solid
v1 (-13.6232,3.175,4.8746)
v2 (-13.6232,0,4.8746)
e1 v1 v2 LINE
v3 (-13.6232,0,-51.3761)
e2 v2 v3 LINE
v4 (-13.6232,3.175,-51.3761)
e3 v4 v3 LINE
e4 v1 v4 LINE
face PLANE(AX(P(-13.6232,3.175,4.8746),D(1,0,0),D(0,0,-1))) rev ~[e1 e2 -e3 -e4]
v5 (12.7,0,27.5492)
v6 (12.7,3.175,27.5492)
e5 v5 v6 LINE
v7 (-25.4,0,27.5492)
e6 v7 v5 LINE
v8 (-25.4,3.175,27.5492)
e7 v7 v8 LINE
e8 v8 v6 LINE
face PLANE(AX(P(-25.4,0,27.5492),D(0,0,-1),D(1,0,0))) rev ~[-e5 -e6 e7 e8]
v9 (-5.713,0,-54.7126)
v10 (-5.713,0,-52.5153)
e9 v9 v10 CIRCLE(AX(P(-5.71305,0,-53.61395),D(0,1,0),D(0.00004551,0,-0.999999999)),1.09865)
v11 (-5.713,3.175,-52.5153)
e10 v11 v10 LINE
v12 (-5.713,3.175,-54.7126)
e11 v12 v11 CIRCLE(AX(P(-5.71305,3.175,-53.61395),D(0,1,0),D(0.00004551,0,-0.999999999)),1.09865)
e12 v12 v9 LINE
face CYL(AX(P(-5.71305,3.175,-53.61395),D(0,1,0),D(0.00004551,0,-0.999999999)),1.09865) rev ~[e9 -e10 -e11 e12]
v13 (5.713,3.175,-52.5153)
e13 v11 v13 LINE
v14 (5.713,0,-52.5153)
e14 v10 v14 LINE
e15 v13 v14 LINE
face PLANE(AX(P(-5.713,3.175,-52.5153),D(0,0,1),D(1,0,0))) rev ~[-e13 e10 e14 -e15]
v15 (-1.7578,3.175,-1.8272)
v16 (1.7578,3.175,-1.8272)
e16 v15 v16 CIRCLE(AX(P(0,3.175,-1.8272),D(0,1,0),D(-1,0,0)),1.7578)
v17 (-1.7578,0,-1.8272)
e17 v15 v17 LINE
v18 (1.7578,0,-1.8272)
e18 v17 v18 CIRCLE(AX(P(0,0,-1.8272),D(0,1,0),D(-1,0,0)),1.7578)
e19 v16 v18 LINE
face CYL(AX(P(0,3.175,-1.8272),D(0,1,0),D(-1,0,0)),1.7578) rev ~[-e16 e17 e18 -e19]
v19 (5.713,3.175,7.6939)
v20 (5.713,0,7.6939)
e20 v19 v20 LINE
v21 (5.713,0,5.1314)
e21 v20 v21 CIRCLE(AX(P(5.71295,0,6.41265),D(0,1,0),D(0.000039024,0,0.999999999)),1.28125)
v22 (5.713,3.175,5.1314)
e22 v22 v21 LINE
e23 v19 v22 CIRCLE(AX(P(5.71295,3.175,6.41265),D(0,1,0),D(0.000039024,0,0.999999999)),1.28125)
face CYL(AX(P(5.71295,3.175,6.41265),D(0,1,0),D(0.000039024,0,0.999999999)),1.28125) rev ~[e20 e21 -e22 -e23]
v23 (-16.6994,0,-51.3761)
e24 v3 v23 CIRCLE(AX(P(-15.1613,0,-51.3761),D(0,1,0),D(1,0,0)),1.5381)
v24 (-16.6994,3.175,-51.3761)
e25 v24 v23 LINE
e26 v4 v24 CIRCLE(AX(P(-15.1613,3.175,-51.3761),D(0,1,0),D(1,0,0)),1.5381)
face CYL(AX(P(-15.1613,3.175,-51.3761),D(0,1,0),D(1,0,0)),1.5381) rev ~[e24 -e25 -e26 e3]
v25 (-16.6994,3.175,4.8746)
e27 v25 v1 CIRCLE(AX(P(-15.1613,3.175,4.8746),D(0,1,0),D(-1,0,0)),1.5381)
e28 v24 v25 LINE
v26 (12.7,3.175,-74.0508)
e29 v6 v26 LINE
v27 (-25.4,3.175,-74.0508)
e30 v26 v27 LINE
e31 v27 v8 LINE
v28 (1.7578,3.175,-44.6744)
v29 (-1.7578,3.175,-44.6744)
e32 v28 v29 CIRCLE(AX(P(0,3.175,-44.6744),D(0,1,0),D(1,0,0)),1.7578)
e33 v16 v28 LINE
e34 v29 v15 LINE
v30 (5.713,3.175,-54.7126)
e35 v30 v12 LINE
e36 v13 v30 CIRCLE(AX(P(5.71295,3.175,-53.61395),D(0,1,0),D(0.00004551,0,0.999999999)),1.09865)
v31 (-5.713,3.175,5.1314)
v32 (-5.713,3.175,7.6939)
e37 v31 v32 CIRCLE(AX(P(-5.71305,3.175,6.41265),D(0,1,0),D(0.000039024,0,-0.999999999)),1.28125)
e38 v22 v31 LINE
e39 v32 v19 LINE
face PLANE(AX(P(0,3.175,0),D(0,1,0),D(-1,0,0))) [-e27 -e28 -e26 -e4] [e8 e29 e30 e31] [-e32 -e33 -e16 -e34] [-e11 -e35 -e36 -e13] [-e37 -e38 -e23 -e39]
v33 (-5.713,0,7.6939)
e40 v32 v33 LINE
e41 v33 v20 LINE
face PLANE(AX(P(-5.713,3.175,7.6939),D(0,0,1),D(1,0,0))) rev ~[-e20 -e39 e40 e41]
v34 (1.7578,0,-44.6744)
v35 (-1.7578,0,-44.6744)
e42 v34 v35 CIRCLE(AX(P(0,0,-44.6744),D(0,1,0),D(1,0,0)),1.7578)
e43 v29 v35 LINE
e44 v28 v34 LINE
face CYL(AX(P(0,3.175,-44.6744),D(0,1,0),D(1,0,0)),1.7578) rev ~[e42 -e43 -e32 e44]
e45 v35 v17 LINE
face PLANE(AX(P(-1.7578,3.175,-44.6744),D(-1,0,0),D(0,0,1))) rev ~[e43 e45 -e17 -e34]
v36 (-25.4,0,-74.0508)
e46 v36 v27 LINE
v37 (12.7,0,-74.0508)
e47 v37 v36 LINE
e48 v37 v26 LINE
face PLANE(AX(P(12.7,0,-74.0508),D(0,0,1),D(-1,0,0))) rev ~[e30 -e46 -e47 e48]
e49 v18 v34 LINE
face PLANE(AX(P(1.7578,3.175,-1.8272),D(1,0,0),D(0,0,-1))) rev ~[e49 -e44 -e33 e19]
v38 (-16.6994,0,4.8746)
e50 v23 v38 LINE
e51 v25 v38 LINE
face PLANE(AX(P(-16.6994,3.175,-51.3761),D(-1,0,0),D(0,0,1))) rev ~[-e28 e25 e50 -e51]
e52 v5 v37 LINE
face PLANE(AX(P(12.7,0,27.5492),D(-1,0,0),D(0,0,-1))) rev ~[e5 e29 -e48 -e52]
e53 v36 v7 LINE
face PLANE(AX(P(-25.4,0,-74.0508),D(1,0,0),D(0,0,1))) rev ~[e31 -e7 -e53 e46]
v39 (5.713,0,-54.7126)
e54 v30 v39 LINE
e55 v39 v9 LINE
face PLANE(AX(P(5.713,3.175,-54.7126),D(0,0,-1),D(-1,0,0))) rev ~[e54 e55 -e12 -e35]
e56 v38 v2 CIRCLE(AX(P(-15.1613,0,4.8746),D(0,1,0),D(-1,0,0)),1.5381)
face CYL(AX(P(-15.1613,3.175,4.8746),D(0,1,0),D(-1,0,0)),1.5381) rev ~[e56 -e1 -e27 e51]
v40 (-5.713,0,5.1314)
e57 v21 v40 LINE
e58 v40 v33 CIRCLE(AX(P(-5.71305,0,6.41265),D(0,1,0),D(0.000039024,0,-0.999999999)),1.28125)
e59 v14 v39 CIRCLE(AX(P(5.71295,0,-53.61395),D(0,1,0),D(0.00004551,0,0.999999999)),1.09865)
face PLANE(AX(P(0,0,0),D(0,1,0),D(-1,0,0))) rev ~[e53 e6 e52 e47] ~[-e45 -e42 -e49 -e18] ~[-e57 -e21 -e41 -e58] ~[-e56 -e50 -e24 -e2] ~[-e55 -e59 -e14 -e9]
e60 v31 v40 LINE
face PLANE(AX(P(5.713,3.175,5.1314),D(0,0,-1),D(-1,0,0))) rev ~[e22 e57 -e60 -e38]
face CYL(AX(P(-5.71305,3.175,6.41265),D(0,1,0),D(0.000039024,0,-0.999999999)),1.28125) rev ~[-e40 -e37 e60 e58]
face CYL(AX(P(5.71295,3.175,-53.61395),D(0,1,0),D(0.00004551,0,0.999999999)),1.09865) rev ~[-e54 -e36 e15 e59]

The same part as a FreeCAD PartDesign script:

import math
import FreeCAD as App
import Part
import Sketcher
from FreeCAD import Vector
Q = App.Units.Quantity


def add_polygon(sketch, points):
    """Adds a closed chain of lines whose ends are joined by coincident constraints."""
    first, n = sketch.GeometryCount, len(points)
    for a, b in zip(points, points[1:] + points[:1]):
        sketch.addGeometry(Part.LineSegment(App.Vector(*a, 0), App.Vector(*b, 0)), False)
    for i in range(n):
        sketch.addConstraint(Sketcher.Constraint("Coincident", first + i, 2, first + (i + 1) % n, 1))

doc = App.newDocument("Part")
body = doc.addObject("PartDesign::Body", "Body")

# Sketch on XZ plane
sketch1 = body.newObject("Sketcher::SketchObject", "Sketch")
sketch1.AttachmentSupport = (doc.getObject("XZ_Plane"), [""])
sketch1.MapMode = "FlatFace"
add_polygon(sketch1, [(13, 28), (13, -74), (-25, -74), (-25, 28)])  # lines 0-3
sketch1.addConstraint(Sketcher.Constraint("Vertical", 0))
sketch1.addConstraint(Sketcher.Constraint("Horizontal", 1))
sketch1.addConstraint(Sketcher.Constraint("Vertical", 2))
sketch1.addConstraint(Sketcher.Constraint("Horizontal", 3))
sketch1.addConstraint(Sketcher.Constraint("DistanceY", 0, 2, 0, 1, Q("4 in")))
sketch1.addConstraint(Sketcher.Constraint("DistanceX", 1, 2, 1, 1, Q("1.5 in")))
sketch1.addConstraint(Sketcher.Constraint("DistanceX", 1, 2, -1, 1, Q("1 in")))
sketch1.addConstraint(Sketcher.Constraint("DistanceY", 0, 2, -1, 1, Q("74.0508 mm")))
pad1 = body.newObject("PartDesign::Pad", "Pad")
pad1.Profile = sketch1
pad1.Length = Q("0.125 in")
pad1.Reversed = True

# Sketch on XZ plane
sketch2 = body.newObject("Sketcher::SketchObject", "Sketch001")
sketch2.AttachmentSupport = (doc.getObject("XZ_Plane"), [""])
sketch2.MapMode = "FlatFace"
sketch2.AttachmentOffset = App.Placement(Vector(0, 0, -0.125 * 25.4), App.Rotation())
sketch2.addGeometry(Part.ArcOfCircle(Part.Circle(Vector(0, -1.8, 0), Vector(0, 0, 1), 1.8), math.radians(0), math.radians(180)), False)
sketch2.addGeometry(Part.LineSegment(Vector(1.8, -1.8, 0), Vector(1.8, -44.7, 0)), False)
sketch2.addGeometry(Part.ArcOfCircle(Part.Circle(Vector(0, -44.7, 0), Vector(0, 0, 1), 1.8), math.radians(180), math.radians(360)), False)
sketch2.addGeometry(Part.LineSegment(Vector(-1.8, -44.7, 0), Vector(-1.8, -1.8, 0)), False)
sketch2.addGeometry(Part.ArcOfCircle(Part.Circle(Vector(-15.2, 4.9, 0), Vector(0, 0, 1), 1.5), math.radians(0), math.radians(180)), False)
sketch2.addGeometry(Part.LineSegment(Vector(-13.6, 4.9, 0), Vector(-13.6, -51.4, 0)), False)
sketch2.addGeometry(Part.ArcOfCircle(Part.Circle(Vector(-15.2, -51.4, 0), Vector(0, 0, 1), 1.5), math.radians(180), math.radians(360)), False)
sketch2.addGeometry(Part.LineSegment(Vector(-16.7, -51.4, 0), Vector(-16.7, 4.9, 0)), False)
sketch2.addGeometry(Part.ArcOfCircle(Part.Circle(Vector(5.7, 6.4, 0), Vector(0, 0, 1), 1.3), math.radians(-90), math.radians(90)), False)
sketch2.addGeometry(Part.LineSegment(Vector(5.7, 5.1, 0), Vector(-5.7, 5.1, 0)), False)
sketch2.addGeometry(Part.ArcOfCircle(Part.Circle(Vector(-5.7, 6.4, 0), Vector(0, 0, 1), 1.3), math.radians(90), math.radians(270)), False)
sketch2.addGeometry(Part.LineSegment(Vector(-5.7, 7.7, 0), Vector(5.7, 7.7, 0)), False)
sketch2.addGeometry(Part.ArcOfCircle(Part.Circle(Vector(5.7, -53.6, 0), Vector(0, 0, 1), 1.1), math.radians(-90), math.radians(90)), False)
sketch2.addGeometry(Part.LineSegment(Vector(5.7, -54.7, 0), Vector(-5.7, -54.7, 0)), False)
sketch2.addGeometry(Part.ArcOfCircle(Part.Circle(Vector(-5.7, -53.6, 0), Vector(0, 0, 1), 1.1), math.radians(90), math.radians(270)), False)
sketch2.addGeometry(Part.LineSegment(Vector(-5.7, -52.5, 0), Vector(5.7, -52.5, 0)), False)
sketch2.addConstraint(Sketcher.Constraint("Tangent", 0, 1, 1, 1))
sketch2.addConstraint(Sketcher.Constraint("Tangent", 1, 2, 2, 2))
sketch2.addConstraint(Sketcher.Constraint("Tangent", 2, 1, 3, 1))
sketch2.addConstraint(Sketcher.Constraint("Tangent", 3, 2, 0, 2))
sketch2.addConstraint(Sketcher.Constraint("Tangent", 4, 1, 5, 1))
sketch2.addConstraint(Sketcher.Constraint("Tangent", 5, 2, 6, 2))
sketch2.addConstraint(Sketcher.Constraint("Tangent", 6, 1, 7, 1))
sketch2.addConstraint(Sketcher.Constraint("Tangent", 7, 2, 4, 2))
sketch2.addConstraint(Sketcher.Constraint("Tangent", 8, 1, 9, 1))
sketch2.addConstraint(Sketcher.Constraint("Tangent", 9, 2, 10, 2))
sketch2.addConstraint(Sketcher.Constraint("Tangent", 10, 1, 11, 1))
sketch2.addConstraint(Sketcher.Constraint("Tangent", 11, 2, 8, 2))
sketch2.addConstraint(Sketcher.Constraint("Tangent", 12, 1, 13, 1))
sketch2.addConstraint(Sketcher.Constraint("Tangent", 13, 2, 14, 2))
sketch2.addConstraint(Sketcher.Constraint("Tangent", 14, 1, 15, 1))
sketch2.addConstraint(Sketcher.Constraint("Tangent", 15, 2, 12, 2))
sketch2.addConstraint(Sketcher.Constraint("Vertical", 1))
sketch2.addConstraint(Sketcher.Constraint("Vertical", 3))
sketch2.addConstraint(Sketcher.Constraint("Vertical", 5))
sketch2.addConstraint(Sketcher.Constraint("Vertical", 7))
sketch2.addConstraint(Sketcher.Constraint("Horizontal", 9))
sketch2.addConstraint(Sketcher.Constraint("Horizontal", 11))
sketch2.addConstraint(Sketcher.Constraint("Horizontal", 13))
sketch2.addConstraint(Sketcher.Constraint("Horizontal", 15))
sketch2.addConstraint(Sketcher.Constraint("PointOnObject", 0, 3, -2))
sketch2.addConstraint(Sketcher.Constraint("Vertical", 8, 3, 12, 3))
sketch2.addConstraint(Sketcher.Constraint("Vertical", 10, 3, 14, 3))
sketch2.addConstraint(Sketcher.Constraint("Radius", 0, Q("0.0692 in")))
sketch2.addConstraint(Sketcher.Constraint("Radius", 4, Q("1.538 mm")))
sketch2.addConstraint(Sketcher.Constraint("Radius", 8, Q("1.2812 mm")))
sketch2.addConstraint(Sketcher.Constraint("Radius", 12, Q("1.0986 mm")))
sketch2.addConstraint(Sketcher.Constraint("DistanceY", 1, 2, 1, 1, Q("1.6869 in")))
sketch2.addConstraint(Sketcher.Constraint("DistanceY", 5, 2, 5, 1, Q("2.2146 in")))
sketch2.addConstraint(Sketcher.Constraint("DistanceY", 4, 1, 10, 1, Q("0.111 in")))
sketch2.addConstraint(Sketcher.Constraint("DistanceX", 9, 2, 9, 1, Q("11.426 mm")))
sketch2.addConstraint(Sketcher.Constraint("DistanceX", 4, 3, -1, 1, Q("0.5969 in")))
sketch2.addConstraint(Sketcher.Constraint("DistanceY", -1, 1, 11, 2, Q("0.3029 in")))
sketch2.addConstraint(Sketcher.Constraint("DistanceY", 0, 3, 8, 3, Q("0.3244 in")))
sketch2.addConstraint(Sketcher.Constraint("DistanceY", 12, 3, 6, 3, Q("0.0881 in")))
sketch2.addConstraint(Sketcher.Constraint("DistanceX", -1, 1, 8, 3, Q("5.713 mm")))
pocket1 = body.newObject("PartDesign::Pocket", "Pocket")
pocket1.Profile = sketch2
pocket1.Length = Q("0.125 in")
pocket1.Reversed = True

doc.recompute()
